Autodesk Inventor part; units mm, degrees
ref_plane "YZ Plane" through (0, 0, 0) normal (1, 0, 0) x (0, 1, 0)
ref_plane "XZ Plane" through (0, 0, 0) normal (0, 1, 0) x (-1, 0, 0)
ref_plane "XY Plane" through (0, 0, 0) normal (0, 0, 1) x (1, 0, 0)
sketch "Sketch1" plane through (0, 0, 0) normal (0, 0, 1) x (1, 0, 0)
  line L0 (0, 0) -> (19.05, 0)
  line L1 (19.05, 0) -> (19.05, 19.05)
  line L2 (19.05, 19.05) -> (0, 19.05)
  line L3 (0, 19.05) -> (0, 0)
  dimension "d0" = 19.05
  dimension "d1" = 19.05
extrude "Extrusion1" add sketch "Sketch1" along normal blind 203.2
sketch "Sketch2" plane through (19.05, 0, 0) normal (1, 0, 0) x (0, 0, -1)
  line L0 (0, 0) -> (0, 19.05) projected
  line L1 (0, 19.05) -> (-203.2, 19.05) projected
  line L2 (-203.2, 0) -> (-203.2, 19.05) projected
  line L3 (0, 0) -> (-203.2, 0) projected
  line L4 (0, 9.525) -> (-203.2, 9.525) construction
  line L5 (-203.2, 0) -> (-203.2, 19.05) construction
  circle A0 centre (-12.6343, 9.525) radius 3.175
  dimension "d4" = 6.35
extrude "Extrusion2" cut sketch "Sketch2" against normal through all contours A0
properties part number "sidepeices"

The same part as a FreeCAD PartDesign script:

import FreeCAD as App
import Part
import Sketcher
Q = App.Units.Quantity

doc = App.newDocument("Part")
body = doc.addObject("PartDesign::Body", "Body")

sketch1 = doc.addObject("Sketcher::SketchObject", "Sketch")
body.addObject(sketch1)
sketch1.AttachmentSupport = (doc.XY_Plane, [""])
sketch1.MapMode = "FlatFace"
sketch1.addGeometry([
    Part.LineSegment(App.Vector(0, 19, 0), App.Vector(0, 0, 0)),
    Part.LineSegment(App.Vector(0, 0, 0), App.Vector(19, 0, 0)),
    Part.LineSegment(App.Vector(19, 0, 0), App.Vector(19, 19, 0)),
    Part.LineSegment(App.Vector(19, 19, 0), App.Vector(0, 19, 0)),
], False)
sketch1.addConstraint([
    Sketcher.Constraint("Coincident", 0, 2, 1, 1),
    Sketcher.Constraint("Coincident", 1, 2, 2, 1),
    Sketcher.Constraint("Coincident", 2, 2, 3, 1),
    Sketcher.Constraint("Coincident", 3, 2, 0, 1),
    Sketcher.Constraint("Vertical", 0),
    Sketcher.Constraint("Horizontal", 1),
    Sketcher.Constraint("Vertical", 2),
    Sketcher.Constraint("Horizontal", 3),
    Sketcher.Constraint("Coincident", 0, 2, -1, 1),
    Sketcher.Constraint("Equal", 3, 0),
    Sketcher.Constraint("DistanceX", 1, 1, 1, 2, Q("0.75 in")),
])
pad1 = doc.addObject("PartDesign::Pad", "Pad")
body.addObject(pad1)
pad1.Profile = sketch1
pad1.Length = Q("8 in")

sketch2 = doc.addObject("Sketcher::SketchObject", "Sketch001")
body.addObject(sketch2)
sketch2.AttachmentSupport = (doc.YZ_Plane, [""])
sketch2.MapMode = "FlatFace"
sketch2.AttachmentOffset = App.Placement(App.Vector(0, 0, 0.75 * 25.4), App.Rotation())
sketch2.addGeometry(Part.Circle(App.Vector(9.5, 12.6, 0), App.Vector(0, 0, 1), 3.2), False)
sketch2.addConstraint([
    Sketcher.Constraint("Diameter", 0, Q("0.25 in")),
    Sketcher.Constraint("DistanceX", -1, 1, 0, 3, Q("0.375 in")),
    Sketcher.Constraint("DistanceY", -1, 1, 0, 3, Q("12.6343 mm")),
])
pocket1 = doc.addObject("PartDesign::Pocket", "Pocket")
body.addObject(pocket1)
pocket1.Profile = sketch2
pocket1.Type = "ThroughAll"

doc.recompute()
